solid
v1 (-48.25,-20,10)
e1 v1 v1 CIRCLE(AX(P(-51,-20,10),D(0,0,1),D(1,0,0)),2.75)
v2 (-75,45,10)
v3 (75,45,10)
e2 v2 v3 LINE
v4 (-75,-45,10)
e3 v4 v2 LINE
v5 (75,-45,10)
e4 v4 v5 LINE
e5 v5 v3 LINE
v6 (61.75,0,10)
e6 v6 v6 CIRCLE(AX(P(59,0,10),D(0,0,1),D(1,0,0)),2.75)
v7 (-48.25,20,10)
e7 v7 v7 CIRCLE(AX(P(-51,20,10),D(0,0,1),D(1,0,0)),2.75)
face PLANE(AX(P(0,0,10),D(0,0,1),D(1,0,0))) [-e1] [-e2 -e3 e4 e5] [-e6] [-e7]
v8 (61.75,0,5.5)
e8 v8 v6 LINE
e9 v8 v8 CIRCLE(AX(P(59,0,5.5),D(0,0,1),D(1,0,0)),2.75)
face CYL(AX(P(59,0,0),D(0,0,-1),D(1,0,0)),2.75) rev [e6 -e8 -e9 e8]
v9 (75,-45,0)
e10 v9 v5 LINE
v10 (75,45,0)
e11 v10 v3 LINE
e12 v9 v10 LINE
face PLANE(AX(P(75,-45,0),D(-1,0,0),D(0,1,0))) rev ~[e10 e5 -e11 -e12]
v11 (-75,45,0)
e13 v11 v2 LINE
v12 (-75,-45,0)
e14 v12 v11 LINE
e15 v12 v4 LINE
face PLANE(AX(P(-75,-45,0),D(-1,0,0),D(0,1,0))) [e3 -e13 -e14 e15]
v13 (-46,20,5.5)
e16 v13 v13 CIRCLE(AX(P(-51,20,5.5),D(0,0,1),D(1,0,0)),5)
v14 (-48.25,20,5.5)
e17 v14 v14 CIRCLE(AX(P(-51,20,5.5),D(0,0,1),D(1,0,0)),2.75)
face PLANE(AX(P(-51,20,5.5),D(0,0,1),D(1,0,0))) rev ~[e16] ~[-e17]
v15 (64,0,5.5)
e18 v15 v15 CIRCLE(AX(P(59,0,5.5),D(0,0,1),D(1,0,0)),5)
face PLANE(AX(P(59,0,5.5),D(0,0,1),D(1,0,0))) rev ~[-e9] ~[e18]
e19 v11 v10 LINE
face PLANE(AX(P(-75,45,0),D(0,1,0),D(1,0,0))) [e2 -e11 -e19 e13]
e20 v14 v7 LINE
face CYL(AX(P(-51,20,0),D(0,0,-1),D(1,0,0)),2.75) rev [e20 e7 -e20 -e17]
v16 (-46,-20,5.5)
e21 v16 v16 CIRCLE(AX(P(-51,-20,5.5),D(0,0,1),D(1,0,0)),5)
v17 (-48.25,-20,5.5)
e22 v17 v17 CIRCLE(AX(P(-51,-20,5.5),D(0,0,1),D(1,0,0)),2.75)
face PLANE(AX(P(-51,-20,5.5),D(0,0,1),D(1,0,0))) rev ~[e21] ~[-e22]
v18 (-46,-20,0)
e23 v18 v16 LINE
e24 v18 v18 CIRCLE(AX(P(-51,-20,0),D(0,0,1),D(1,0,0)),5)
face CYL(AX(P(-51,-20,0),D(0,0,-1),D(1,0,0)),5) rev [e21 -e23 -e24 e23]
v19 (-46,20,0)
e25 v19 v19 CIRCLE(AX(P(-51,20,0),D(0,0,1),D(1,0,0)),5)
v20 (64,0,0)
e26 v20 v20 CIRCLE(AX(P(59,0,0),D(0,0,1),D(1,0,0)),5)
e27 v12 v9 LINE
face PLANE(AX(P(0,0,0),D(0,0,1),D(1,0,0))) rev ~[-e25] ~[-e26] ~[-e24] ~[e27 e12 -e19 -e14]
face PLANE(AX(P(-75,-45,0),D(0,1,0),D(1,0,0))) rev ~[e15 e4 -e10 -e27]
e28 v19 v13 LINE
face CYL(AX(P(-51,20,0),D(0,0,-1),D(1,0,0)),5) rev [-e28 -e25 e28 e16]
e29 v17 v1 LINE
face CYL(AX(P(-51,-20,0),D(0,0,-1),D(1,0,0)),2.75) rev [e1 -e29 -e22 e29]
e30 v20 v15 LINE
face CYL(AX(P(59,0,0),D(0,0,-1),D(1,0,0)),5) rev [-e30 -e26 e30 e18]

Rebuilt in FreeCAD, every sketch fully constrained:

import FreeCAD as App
import Part
import Sketcher
from FreeCAD import Vector
Q = App.Units.Quantity


def add_polygon(sketch, points):
    """Adds a closed chain of lines whose ends are joined by coincident constraints."""
    first, n = sketch.GeometryCount, len(points)
    for a, b in zip(points, points[1:] + points[:1]):
        sketch.addGeometry(Part.LineSegment(App.Vector(*a, 0), App.Vector(*b, 0)), False)
    for i in range(n):
        sketch.addConstraint(Sketcher.Constraint("Coincident", first + i, 2, first + (i + 1) % n, 1))

doc = App.newDocument("Part")
params = doc.addObject("Spreadsheet::Sheet", "Params")
for row, (alias, value) in enumerate([
    ("sketch1_diameter", "5.5 mm"),
    ("sketch1_width", "150 mm"),
    ("sketch1_height", "90 mm"),
    ("pad1_length", "10 mm"),
    ("sketch2_diameter", "10 mm"),
    ("sketch2_diameter2", "5.5 mm"),
    ("pocket1_length", "5.5 mm"),
], start=1):
    params.set(f"A{row}", alias)
    params.set(f"B{row}", "=" + value)
    params.setAlias(f"B{row}", alias)

body = doc.addObject("PartDesign::Body", "Body")

# Sketch on XY plane
sketch1 = body.newObject("Sketcher::SketchObject", "Sketch")
sketch1.AttachmentSupport = (doc.getObject("XY_Plane"), [""])
sketch1.MapMode = "FlatFace"
add_polygon(sketch1, [(-75, 45), (-75, -45), (75, -45), (75, 45)])  # lines 0-3
sketch1.addGeometry(Part.Circle(Vector(-51, -20, 0), Vector(0, 0, 1), 2.8), False)  # 4
sketch1.addGeometry(Part.Circle(Vector(-51, 20, 0), Vector(0, 0, 1), 2.8), False)  # 5
sketch1.addGeometry(Part.Circle(Vector(59, 0, 0), Vector(0, 0, 1), 2.8), False)  # 6
sketch1.addConstraint([
    Sketcher.Constraint("Vertical", 0),
    Sketcher.Constraint("Horizontal", 1),
    Sketcher.Constraint("Vertical", 2),
    Sketcher.Constraint("Horizontal", 3),
    Sketcher.Constraint("Equal", 4, 5),
    Sketcher.Constraint("Equal", 5, 6),
    Sketcher.Constraint("Symmetric", 0, 2, 2, 2, -1, 1),
    Sketcher.Constraint("Symmetric", 4, 3, 5, 3, -1),
    Sketcher.Constraint("PointOnObject", 6, 3, -1),
    Sketcher.Constraint("Diameter", 4, Q("5.5 mm")),
    Sketcher.Constraint("DistanceX", 1, 1, 1, 2, Q("150 mm")),
    Sketcher.Constraint("DistanceY", 0, 2, 0, 1, Q("90 mm")),
    Sketcher.Constraint("DistanceX", 4, 3, -1, 1, Q("51 mm")),
    Sketcher.Constraint("DistanceY", 4, 3, -1, 1, Q("20 mm")),
    Sketcher.Constraint("DistanceX", -1, 1, 6, 3, Q("59 mm")),
])
sketch1.setExpression("Constraints[13]", "Params.sketch1_diameter")
sketch1.setExpression("Constraints[14]", "Params.sketch1_width")
sketch1.setExpression("Constraints[15]", "Params.sketch1_height")
pad1 = body.newObject("PartDesign::Pad", "Pad")
pad1.Profile = sketch1
pad1.setExpression("Length", "Params.pad1_length")

# Sketch on XY plane
sketch2 = body.newObject("Sketcher::SketchObject", "Sketch001")
sketch2.AttachmentSupport = (doc.getObject("XY_Plane"), [""])
sketch2.MapMode = "FlatFace"
sketch2.addGeometry([
    Part.Circle(Vector(-51, -20, 0), Vector(0, 0, 1), 5),  # 0
    Part.Circle(Vector(-51, -20, 0), Vector(0, 0, 1), 2.8),  # 1
    Part.Circle(Vector(-51, 20, 0), Vector(0, 0, 1), 5),  # 2
    Part.Circle(Vector(-51, 20, 0), Vector(0, 0, 1), 2.8),  # 3
    Part.Circle(Vector(59, 0, 0), Vector(0, 0, 1), 5),  # 4
    Part.Circle(Vector(59, 0, 0), Vector(0, 0, 1), 2.8),  # 5
], False)
sketch2.addConstraint([
    Sketcher.Constraint("Coincident", 1, 3, 0, 3),
    Sketcher.Constraint("Coincident", 3, 3, 2, 3),
    Sketcher.Constraint("Coincident", 5, 3, 4, 3),
    Sketcher.Constraint("Equal", 0, 2),
    Sketcher.Constraint("Equal", 1, 3),
    Sketcher.Constraint("Equal", 2, 4),
    Sketcher.Constraint("Equal", 3, 5),
    Sketcher.Constraint("Symmetric", 0, 3, 2, 3, -1),
    Sketcher.Constraint("PointOnObject", 4, 3, -1),
    Sketcher.Constraint("Diameter", 0, Q("10 mm")),
    Sketcher.Constraint("Diameter", 1, Q("5.5 mm")),
    Sketcher.Constraint("DistanceX", 0, 3, -1, 1, Q("51 mm")),
    Sketcher.Constraint("DistanceY", 0, 3, -1, 1, Q("20 mm")),
    Sketcher.Constraint("DistanceX", -1, 1, 4, 3, Q("59 mm")),
])
sketch2.setExpression("Constraints[9]", "Params.sketch2_diameter")
sketch2.setExpression("Constraints[10]", "Params.sketch2_diameter2")
pocket1 = body.newObject("PartDesign::Pocket", "Pocket")
pocket1.Profile = sketch2
pocket1.setExpression("Length", "Params.pocket1_length")
pocket1.Reversed = True

doc.recompute()
